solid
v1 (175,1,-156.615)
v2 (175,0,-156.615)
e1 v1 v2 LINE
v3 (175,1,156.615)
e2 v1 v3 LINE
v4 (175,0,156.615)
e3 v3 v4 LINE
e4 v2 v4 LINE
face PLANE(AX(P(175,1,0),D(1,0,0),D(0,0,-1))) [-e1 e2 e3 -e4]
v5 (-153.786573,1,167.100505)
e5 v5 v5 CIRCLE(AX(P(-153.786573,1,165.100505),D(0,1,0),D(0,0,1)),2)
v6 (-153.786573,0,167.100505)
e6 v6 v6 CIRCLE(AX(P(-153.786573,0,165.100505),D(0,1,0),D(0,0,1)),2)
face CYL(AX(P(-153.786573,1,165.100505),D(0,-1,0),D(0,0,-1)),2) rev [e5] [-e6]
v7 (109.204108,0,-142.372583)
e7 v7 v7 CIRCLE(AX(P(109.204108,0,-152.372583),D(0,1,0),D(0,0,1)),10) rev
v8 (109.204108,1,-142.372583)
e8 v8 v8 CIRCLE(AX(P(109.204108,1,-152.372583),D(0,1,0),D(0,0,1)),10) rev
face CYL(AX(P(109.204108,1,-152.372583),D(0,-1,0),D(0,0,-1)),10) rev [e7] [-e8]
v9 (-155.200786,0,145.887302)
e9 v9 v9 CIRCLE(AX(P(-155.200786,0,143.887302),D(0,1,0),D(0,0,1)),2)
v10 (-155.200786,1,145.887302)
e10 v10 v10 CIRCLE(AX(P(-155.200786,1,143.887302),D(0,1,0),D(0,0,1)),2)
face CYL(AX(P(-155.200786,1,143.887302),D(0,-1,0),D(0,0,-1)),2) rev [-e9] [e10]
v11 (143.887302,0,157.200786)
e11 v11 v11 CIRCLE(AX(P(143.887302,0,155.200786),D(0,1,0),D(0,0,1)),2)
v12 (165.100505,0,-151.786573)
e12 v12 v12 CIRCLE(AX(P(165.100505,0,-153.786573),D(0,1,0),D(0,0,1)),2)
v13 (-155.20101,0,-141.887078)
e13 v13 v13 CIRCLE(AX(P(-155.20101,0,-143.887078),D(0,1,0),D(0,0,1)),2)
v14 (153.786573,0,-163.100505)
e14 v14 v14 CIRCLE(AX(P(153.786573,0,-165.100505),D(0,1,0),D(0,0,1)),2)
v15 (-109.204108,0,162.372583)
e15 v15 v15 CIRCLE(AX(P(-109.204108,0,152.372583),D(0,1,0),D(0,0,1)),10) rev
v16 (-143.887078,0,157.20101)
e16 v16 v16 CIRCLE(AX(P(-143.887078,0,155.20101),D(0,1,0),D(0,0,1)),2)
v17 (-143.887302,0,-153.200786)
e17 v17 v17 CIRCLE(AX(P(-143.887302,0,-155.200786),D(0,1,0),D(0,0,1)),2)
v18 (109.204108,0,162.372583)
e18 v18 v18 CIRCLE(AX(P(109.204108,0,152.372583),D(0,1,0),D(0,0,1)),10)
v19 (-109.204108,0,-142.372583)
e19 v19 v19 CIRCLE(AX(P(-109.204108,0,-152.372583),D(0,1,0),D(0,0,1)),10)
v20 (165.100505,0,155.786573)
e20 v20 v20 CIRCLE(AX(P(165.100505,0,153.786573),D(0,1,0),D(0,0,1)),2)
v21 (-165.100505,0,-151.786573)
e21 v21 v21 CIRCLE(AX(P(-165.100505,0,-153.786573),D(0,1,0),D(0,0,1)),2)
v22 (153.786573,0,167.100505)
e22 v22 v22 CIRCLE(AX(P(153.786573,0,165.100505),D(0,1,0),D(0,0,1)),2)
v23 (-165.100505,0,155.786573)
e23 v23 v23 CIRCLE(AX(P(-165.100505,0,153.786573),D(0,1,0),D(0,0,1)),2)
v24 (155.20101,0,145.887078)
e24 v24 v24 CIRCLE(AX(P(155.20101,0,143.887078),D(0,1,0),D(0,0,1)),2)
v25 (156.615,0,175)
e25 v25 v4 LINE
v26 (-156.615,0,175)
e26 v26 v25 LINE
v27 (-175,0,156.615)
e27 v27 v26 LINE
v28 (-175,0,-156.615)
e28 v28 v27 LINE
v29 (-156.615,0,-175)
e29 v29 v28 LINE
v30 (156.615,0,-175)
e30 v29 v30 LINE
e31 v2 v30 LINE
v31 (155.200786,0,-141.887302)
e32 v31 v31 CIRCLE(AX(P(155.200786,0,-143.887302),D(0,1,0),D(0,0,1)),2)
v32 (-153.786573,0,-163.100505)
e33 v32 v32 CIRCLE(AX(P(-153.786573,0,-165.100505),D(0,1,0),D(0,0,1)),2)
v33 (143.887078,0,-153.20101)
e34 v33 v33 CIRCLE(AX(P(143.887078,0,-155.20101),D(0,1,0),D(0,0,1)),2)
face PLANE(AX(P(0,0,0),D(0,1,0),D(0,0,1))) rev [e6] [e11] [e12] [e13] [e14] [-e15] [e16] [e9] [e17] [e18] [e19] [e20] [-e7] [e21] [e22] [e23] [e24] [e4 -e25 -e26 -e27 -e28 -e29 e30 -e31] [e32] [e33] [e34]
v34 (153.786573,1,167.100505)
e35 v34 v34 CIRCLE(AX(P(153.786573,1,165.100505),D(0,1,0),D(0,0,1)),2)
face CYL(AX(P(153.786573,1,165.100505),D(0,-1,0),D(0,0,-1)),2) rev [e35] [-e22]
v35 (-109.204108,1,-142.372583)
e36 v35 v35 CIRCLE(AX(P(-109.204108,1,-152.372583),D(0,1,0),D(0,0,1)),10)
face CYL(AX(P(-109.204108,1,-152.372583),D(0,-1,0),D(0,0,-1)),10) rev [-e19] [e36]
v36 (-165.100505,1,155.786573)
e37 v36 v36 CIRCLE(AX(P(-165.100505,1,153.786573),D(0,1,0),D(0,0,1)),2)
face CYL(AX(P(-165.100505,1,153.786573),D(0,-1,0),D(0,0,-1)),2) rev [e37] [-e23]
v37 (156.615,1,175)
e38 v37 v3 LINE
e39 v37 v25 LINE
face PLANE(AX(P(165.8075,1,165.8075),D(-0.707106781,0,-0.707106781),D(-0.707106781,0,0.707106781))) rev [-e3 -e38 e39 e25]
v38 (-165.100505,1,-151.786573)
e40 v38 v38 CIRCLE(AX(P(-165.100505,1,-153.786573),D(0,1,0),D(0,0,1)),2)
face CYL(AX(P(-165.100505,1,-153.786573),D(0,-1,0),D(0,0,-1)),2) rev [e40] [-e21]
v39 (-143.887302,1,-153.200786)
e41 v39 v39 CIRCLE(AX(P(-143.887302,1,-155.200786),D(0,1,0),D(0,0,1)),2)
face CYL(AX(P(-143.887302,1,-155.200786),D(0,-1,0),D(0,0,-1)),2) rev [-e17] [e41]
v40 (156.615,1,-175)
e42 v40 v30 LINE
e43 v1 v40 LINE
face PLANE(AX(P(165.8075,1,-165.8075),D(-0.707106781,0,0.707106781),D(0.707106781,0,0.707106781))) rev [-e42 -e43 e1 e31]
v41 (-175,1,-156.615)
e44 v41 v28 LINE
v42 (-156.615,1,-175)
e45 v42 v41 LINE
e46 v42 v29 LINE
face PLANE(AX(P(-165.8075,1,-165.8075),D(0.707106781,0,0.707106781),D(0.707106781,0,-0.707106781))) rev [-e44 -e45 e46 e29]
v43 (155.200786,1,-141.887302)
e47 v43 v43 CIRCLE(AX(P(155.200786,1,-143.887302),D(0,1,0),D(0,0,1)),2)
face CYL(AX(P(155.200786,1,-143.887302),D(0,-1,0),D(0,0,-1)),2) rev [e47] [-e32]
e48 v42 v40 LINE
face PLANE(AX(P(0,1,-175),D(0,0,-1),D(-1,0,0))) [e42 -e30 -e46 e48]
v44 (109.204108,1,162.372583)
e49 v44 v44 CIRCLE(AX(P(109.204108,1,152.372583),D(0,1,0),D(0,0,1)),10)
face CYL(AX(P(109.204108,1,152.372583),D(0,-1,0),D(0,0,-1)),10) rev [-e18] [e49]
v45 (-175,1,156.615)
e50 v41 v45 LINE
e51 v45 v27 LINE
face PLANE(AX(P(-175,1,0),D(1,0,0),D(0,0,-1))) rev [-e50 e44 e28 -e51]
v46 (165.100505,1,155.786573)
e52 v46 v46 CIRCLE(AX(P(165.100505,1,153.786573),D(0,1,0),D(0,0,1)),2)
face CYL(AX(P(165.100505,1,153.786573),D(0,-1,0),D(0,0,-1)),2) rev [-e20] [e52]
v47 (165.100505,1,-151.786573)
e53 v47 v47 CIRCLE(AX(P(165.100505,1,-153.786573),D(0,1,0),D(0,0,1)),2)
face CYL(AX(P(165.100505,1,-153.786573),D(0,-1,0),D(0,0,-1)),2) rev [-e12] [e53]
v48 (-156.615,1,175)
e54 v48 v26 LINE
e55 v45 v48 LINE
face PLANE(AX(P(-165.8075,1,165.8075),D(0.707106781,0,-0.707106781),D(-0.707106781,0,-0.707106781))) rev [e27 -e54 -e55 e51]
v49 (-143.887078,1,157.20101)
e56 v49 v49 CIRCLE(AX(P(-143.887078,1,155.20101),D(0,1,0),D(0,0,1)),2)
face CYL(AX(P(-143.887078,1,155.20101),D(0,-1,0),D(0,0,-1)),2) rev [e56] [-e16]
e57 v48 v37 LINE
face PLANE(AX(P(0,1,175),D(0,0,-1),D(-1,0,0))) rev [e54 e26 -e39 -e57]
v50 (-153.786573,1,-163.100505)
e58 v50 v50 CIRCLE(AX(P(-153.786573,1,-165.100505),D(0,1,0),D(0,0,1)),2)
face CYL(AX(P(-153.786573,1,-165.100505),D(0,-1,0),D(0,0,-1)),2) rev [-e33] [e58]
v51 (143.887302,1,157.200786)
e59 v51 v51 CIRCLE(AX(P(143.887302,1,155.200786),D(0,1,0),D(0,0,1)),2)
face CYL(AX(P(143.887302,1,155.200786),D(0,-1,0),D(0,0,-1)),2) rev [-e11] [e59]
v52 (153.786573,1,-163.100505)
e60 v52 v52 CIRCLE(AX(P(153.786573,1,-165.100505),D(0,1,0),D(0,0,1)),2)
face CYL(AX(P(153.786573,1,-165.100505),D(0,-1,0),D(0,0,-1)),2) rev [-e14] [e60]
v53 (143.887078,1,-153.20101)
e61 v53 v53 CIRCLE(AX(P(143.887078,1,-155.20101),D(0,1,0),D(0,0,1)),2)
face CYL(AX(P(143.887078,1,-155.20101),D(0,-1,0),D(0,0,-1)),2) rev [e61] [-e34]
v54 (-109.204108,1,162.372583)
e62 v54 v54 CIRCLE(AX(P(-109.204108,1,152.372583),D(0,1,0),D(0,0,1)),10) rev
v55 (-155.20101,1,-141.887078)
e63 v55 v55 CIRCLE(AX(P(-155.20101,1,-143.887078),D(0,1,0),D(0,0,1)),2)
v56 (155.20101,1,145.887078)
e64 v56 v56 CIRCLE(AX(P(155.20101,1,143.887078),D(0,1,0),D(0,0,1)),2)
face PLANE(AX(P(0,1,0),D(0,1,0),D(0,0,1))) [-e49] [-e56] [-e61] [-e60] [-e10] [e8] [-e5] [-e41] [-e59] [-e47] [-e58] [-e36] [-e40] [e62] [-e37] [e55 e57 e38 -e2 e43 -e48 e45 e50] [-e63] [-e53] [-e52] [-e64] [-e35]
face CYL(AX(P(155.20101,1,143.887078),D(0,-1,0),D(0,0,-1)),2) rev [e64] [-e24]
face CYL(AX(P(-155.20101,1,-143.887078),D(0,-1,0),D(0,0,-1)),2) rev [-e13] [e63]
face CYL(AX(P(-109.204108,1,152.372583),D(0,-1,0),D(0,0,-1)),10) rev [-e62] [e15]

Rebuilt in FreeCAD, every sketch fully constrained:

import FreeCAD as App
import Part
import Sketcher
from FreeCAD import Vector
Q = App.Units.Quantity


def add_polygon(sketch, points):
    """Adds a closed chain of lines whose ends are joined by coincident constraints."""
    first, n = sketch.GeometryCount, len(points)
    for a, b in zip(points, points[1:] + points[:1]):
        sketch.addGeometry(Part.LineSegment(App.Vector(*a, 0), App.Vector(*b, 0)), False)
    for i in range(n):
        sketch.addConstraint(Sketcher.Constraint("Coincident", first + i, 2, first + (i + 1) % n, 1))

doc = App.newDocument("Part")
body = doc.addObject("PartDesign::Body", "Body")

sketch1 = body.newObject("Sketcher::SketchObject", "Sketch")
sketch1.AttachmentSupport = (doc.getObject("XZ_Plane"), [""])
sketch1.MapMode = "FlatFace"
add_polygon(sketch1, [(156.615, -175), (-156.615, -175), (-175, -156.615), (-175, 156.615), (-156.615, 175), (156.615, 175), (175, 156.615), (175, -156.615)])
sketch1.addGeometry(Part.Circle(Vector(153.786573, 165.100505, 0), Vector(0, 0, 1), 2), False)
sketch1.addGeometry(Part.Circle(Vector(165.100505, 153.786573, 0), Vector(0, 0, 1), 2), False)
sketch1.addGeometry(Part.Circle(Vector(143.887302, 155.200786, 0), Vector(0, 0, 1), 2), False)
sketch1.addGeometry(Part.Circle(Vector(155.20101, 143.887078, 0), Vector(0, 0, 1), 2), False)
sketch1.addGeometry(Part.Circle(Vector(109.204108, 152.372583, 0), Vector(0, 0, 1), 10), False)
sketch1.addGeometry(Part.Circle(Vector(-109.204108, 152.372583, 0), Vector(0, 0, 1), 10), False)
sketch1.addGeometry(Part.Circle(Vector(-143.887078, 155.20101, 0), Vector(0, 0, 1), 2), False)
sketch1.addGeometry(Part.Circle(Vector(-153.786573, 165.100505, 0), Vector(0, 0, 1), 2), False)
sketch1.addGeometry(Part.Circle(Vector(-165.100505, 153.786573, 0), Vector(0, 0, 1), 2), False)
sketch1.addGeometry(Part.Circle(Vector(-155.200786, 143.887302, 0), Vector(0, 0, 1), 2), False)
sketch1.addGeometry(Part.Circle(Vector(155.200786, -143.887302, 0), Vector(0, 0, 1), 2), False)
sketch1.addGeometry(Part.Circle(Vector(165.100505, -153.786573, 0), Vector(0, 0, 1), 2), False)
sketch1.addGeometry(Part.Circle(Vector(153.786573, -165.100505, 0), Vector(0, 0, 1), 2), False)
sketch1.addGeometry(Part.Circle(Vector(143.887078, -155.20101, 0), Vector(0, 0, 1), 2), False)
sketch1.addGeometry(Part.Circle(Vector(109.204108, -152.372583, 0), Vector(0, 0, 1), 10), False)
sketch1.addGeometry(Part.Circle(Vector(-109.204108, -152.372583, 0), Vector(0, 0, 1), 10), False)
sketch1.addGeometry(Part.Circle(Vector(-155.20101, -143.887078, 0), Vector(0, 0, 1), 2), False)
sketch1.addGeometry(Part.Circle(Vector(-143.887302, -155.200786, 0), Vector(0, 0, 1), 2), False)
sketch1.addGeometry(Part.Circle(Vector(-165.100505, -153.786573, 0), Vector(0, 0, 1), 2), False)
sketch1.addGeometry(Part.Circle(Vector(-153.786573, -165.100505, 0), Vector(0, 0, 1), 2), False)
sketch1.addConstraint(Sketcher.Constraint("Horizontal", 0))
sketch1.addConstraint(Sketcher.Constraint("Vertical", 2))
sketch1.addConstraint(Sketcher.Constraint("Horizontal", 4))
sketch1.addConstraint(Sketcher.Constraint("Vertical", 6))
sketch1.addConstraint(Sketcher.Constraint("Equal", 8, 9))
sketch1.addConstraint(Sketcher.Constraint("Equal", 9, 10))
sketch1.addConstraint(Sketcher.Constraint("Equal", 10, 11))
sketch1.addConstraint(Sketcher.Constraint("Equal", 12, 13))
sketch1.addConstraint(Sketcher.Constraint("Equal", 11, 14))
sketch1.addConstraint(Sketcher.Constraint("Equal", 14, 15))
sketch1.addConstraint(Sketcher.Constraint("Equal", 15, 16))
sketch1.addConstraint(Sketcher.Constraint("Equal", 16, 17))
sketch1.addConstraint(Sketcher.Constraint("Equal", 17, 18))
sketch1.addConstraint(Sketcher.Constraint("Equal", 18, 19))
sketch1.addConstraint(Sketcher.Constraint("Equal", 19, 20))
sketch1.addConstraint(Sketcher.Constraint("Equal", 20, 21))
sketch1.addConstraint(Sketcher.Constraint("Equal", 13, 22))
sketch1.addConstraint(Sketcher.Constraint("Equal", 22, 23))
sketch1.addConstraint(Sketcher.Constraint("Equal", 21, 24))
sketch1.addConstraint(Sketcher.Constraint("Equal", 24, 25))
sketch1.addConstraint(Sketcher.Constraint("Equal", 25, 26))
sketch1.addConstraint(Sketcher.Constraint("Equal", 26, 27))
sketch1.addConstraint(Sketcher.Constraint("Symmetric", 17, 3, 18, 3, -1, 1))
sketch1.addConstraint(Sketcher.Constraint("Symmetric", 16, 3, 19, 3, -1, 1))
sketch1.addConstraint(Sketcher.Constraint("Symmetric", 15, 3, 20, 3, -1, 1))
sketch1.addConstraint(Sketcher.Constraint("Symmetric", 14, 3, 21, 3, -1, 1))
sketch1.addConstraint(Sketcher.Constraint("Symmetric", 13, 3, 22, 3, -1, 1))
sketch1.addConstraint(Sketcher.Constraint("Symmetric", 12, 3, 23, 3, -1, 1))
sketch1.addConstraint(Sketcher.Constraint("Symmetric", 11, 3, 24, 3, -1, 1))
sketch1.addConstraint(Sketcher.Constraint("Symmetric", 10, 3, 25, 3, -1, 1))
sketch1.addConstraint(Sketcher.Constraint("Symmetric", 9, 3, 26, 3, -1, 1))
sketch1.addConstraint(Sketcher.Constraint("Symmetric", 8, 3, 27, 3, -1, 1))
sketch1.addConstraint(Sketcher.Constraint("Symmetric", 0, 2, 4, 2, -1, 1))
sketch1.addConstraint(Sketcher.Constraint("Symmetric", 1, 2, 5, 2, -1, 1))
sketch1.addConstraint(Sketcher.Constraint("Symmetric", 12, 3, 13, 3, -2))
sketch1.addConstraint(Sketcher.Constraint("Symmetric", 8, 3, 15, 3, -2))
sketch1.addConstraint(Sketcher.Constraint("Symmetric", 9, 3, 16, 3, -2))
sketch1.addConstraint(Sketcher.Constraint("Perpendicular", 1, 3))
sketch1.addConstraint(Sketcher.Constraint("Perpendicular", 5, 7))
sketch1.addConstraint(Sketcher.Constraint("Horizontal", 2, 2, 5, 2))
sketch1.addConstraint(Sketcher.Constraint("Horizontal", 1, 2, 6, 2))
sketch1.addConstraint(Sketcher.Constraint("Vertical", 0, 2, 3, 2))
sketch1.addConstraint(Sketcher.Constraint("Equal", 4, 2))
sketch1.addConstraint(Sketcher.Constraint("Diameter", 8, Q("4 mm")))
sketch1.addConstraint(Sketcher.Constraint("Diameter", 12, Q("20 mm")))
sketch1.addConstraint(Sketcher.Constraint("DistanceY", 0, 2, -1, 1, Q("175 mm")))
sketch1.addConstraint(Sketcher.Constraint("DistanceX", 0, 2, 0, 1, Q("313.23 mm")))
sketch1.addConstraint(Sketcher.Constraint("DistanceX", -1, 1, 10, 3, Q("143.887302 mm")))
sketch1.addConstraint(Sketcher.Constraint("DistanceY", -1, 1, 17, 3, Q("143.887302 mm")))
sketch1.addConstraint(Sketcher.Constraint("DistanceX", -1, 1, 11, 3, Q("155.20101 mm")))
sketch1.addConstraint(Sketcher.Constraint("DistanceX", -1, 1, 12, 3, Q("109.204108 mm")))
sketch1.addConstraint(Sketcher.Constraint("DistanceY", -1, 1, 14, 3, Q("155.20101 mm")))
sketch1.addConstraint(Sketcher.Constraint("DistanceX", 10, 3, 8, 3, Q("9.899271 mm")))
sketch1.addConstraint(Sketcher.Constraint("DistanceY", 10, 3, 8, 3, Q("9.899719 mm")))
sketch1.addConstraint(Sketcher.Constraint("DistanceY", 11, 3, 10, 3, Q("11.313708 mm")))
sketch1.addConstraint(Sketcher.Constraint("DistanceY", 12, 3, 9, 3, Q("1.41399 mm")))
sketch1.addConstraint(Sketcher.Constraint("DistanceX", 14, 3, 13, 3, Q("34.68297 mm")))
sketch1.addConstraint(Sketcher.Constraint("DistanceX", 16, 3, 17, 3, Q("9.899719 mm")))
sketch1.addConstraint(Sketcher.Constraint("DistanceY", 17, 3, 16, 3, Q("9.899271 mm")))
sketch1.addConstraint(Sketcher.Constraint("DistanceX", 17, 3, 14, 3, Q("11.313708 mm")))
sketch1.addConstraint(Sketcher.Constraint("DistanceY", 18, 3, 11, 3, Q("287.77438 mm")))
pad1 = body.newObject("PartDesign::Pad", "Pad")
pad1.Profile = sketch1
pad1.Length = 1
pad1.Reversed = True

doc.recompute()
